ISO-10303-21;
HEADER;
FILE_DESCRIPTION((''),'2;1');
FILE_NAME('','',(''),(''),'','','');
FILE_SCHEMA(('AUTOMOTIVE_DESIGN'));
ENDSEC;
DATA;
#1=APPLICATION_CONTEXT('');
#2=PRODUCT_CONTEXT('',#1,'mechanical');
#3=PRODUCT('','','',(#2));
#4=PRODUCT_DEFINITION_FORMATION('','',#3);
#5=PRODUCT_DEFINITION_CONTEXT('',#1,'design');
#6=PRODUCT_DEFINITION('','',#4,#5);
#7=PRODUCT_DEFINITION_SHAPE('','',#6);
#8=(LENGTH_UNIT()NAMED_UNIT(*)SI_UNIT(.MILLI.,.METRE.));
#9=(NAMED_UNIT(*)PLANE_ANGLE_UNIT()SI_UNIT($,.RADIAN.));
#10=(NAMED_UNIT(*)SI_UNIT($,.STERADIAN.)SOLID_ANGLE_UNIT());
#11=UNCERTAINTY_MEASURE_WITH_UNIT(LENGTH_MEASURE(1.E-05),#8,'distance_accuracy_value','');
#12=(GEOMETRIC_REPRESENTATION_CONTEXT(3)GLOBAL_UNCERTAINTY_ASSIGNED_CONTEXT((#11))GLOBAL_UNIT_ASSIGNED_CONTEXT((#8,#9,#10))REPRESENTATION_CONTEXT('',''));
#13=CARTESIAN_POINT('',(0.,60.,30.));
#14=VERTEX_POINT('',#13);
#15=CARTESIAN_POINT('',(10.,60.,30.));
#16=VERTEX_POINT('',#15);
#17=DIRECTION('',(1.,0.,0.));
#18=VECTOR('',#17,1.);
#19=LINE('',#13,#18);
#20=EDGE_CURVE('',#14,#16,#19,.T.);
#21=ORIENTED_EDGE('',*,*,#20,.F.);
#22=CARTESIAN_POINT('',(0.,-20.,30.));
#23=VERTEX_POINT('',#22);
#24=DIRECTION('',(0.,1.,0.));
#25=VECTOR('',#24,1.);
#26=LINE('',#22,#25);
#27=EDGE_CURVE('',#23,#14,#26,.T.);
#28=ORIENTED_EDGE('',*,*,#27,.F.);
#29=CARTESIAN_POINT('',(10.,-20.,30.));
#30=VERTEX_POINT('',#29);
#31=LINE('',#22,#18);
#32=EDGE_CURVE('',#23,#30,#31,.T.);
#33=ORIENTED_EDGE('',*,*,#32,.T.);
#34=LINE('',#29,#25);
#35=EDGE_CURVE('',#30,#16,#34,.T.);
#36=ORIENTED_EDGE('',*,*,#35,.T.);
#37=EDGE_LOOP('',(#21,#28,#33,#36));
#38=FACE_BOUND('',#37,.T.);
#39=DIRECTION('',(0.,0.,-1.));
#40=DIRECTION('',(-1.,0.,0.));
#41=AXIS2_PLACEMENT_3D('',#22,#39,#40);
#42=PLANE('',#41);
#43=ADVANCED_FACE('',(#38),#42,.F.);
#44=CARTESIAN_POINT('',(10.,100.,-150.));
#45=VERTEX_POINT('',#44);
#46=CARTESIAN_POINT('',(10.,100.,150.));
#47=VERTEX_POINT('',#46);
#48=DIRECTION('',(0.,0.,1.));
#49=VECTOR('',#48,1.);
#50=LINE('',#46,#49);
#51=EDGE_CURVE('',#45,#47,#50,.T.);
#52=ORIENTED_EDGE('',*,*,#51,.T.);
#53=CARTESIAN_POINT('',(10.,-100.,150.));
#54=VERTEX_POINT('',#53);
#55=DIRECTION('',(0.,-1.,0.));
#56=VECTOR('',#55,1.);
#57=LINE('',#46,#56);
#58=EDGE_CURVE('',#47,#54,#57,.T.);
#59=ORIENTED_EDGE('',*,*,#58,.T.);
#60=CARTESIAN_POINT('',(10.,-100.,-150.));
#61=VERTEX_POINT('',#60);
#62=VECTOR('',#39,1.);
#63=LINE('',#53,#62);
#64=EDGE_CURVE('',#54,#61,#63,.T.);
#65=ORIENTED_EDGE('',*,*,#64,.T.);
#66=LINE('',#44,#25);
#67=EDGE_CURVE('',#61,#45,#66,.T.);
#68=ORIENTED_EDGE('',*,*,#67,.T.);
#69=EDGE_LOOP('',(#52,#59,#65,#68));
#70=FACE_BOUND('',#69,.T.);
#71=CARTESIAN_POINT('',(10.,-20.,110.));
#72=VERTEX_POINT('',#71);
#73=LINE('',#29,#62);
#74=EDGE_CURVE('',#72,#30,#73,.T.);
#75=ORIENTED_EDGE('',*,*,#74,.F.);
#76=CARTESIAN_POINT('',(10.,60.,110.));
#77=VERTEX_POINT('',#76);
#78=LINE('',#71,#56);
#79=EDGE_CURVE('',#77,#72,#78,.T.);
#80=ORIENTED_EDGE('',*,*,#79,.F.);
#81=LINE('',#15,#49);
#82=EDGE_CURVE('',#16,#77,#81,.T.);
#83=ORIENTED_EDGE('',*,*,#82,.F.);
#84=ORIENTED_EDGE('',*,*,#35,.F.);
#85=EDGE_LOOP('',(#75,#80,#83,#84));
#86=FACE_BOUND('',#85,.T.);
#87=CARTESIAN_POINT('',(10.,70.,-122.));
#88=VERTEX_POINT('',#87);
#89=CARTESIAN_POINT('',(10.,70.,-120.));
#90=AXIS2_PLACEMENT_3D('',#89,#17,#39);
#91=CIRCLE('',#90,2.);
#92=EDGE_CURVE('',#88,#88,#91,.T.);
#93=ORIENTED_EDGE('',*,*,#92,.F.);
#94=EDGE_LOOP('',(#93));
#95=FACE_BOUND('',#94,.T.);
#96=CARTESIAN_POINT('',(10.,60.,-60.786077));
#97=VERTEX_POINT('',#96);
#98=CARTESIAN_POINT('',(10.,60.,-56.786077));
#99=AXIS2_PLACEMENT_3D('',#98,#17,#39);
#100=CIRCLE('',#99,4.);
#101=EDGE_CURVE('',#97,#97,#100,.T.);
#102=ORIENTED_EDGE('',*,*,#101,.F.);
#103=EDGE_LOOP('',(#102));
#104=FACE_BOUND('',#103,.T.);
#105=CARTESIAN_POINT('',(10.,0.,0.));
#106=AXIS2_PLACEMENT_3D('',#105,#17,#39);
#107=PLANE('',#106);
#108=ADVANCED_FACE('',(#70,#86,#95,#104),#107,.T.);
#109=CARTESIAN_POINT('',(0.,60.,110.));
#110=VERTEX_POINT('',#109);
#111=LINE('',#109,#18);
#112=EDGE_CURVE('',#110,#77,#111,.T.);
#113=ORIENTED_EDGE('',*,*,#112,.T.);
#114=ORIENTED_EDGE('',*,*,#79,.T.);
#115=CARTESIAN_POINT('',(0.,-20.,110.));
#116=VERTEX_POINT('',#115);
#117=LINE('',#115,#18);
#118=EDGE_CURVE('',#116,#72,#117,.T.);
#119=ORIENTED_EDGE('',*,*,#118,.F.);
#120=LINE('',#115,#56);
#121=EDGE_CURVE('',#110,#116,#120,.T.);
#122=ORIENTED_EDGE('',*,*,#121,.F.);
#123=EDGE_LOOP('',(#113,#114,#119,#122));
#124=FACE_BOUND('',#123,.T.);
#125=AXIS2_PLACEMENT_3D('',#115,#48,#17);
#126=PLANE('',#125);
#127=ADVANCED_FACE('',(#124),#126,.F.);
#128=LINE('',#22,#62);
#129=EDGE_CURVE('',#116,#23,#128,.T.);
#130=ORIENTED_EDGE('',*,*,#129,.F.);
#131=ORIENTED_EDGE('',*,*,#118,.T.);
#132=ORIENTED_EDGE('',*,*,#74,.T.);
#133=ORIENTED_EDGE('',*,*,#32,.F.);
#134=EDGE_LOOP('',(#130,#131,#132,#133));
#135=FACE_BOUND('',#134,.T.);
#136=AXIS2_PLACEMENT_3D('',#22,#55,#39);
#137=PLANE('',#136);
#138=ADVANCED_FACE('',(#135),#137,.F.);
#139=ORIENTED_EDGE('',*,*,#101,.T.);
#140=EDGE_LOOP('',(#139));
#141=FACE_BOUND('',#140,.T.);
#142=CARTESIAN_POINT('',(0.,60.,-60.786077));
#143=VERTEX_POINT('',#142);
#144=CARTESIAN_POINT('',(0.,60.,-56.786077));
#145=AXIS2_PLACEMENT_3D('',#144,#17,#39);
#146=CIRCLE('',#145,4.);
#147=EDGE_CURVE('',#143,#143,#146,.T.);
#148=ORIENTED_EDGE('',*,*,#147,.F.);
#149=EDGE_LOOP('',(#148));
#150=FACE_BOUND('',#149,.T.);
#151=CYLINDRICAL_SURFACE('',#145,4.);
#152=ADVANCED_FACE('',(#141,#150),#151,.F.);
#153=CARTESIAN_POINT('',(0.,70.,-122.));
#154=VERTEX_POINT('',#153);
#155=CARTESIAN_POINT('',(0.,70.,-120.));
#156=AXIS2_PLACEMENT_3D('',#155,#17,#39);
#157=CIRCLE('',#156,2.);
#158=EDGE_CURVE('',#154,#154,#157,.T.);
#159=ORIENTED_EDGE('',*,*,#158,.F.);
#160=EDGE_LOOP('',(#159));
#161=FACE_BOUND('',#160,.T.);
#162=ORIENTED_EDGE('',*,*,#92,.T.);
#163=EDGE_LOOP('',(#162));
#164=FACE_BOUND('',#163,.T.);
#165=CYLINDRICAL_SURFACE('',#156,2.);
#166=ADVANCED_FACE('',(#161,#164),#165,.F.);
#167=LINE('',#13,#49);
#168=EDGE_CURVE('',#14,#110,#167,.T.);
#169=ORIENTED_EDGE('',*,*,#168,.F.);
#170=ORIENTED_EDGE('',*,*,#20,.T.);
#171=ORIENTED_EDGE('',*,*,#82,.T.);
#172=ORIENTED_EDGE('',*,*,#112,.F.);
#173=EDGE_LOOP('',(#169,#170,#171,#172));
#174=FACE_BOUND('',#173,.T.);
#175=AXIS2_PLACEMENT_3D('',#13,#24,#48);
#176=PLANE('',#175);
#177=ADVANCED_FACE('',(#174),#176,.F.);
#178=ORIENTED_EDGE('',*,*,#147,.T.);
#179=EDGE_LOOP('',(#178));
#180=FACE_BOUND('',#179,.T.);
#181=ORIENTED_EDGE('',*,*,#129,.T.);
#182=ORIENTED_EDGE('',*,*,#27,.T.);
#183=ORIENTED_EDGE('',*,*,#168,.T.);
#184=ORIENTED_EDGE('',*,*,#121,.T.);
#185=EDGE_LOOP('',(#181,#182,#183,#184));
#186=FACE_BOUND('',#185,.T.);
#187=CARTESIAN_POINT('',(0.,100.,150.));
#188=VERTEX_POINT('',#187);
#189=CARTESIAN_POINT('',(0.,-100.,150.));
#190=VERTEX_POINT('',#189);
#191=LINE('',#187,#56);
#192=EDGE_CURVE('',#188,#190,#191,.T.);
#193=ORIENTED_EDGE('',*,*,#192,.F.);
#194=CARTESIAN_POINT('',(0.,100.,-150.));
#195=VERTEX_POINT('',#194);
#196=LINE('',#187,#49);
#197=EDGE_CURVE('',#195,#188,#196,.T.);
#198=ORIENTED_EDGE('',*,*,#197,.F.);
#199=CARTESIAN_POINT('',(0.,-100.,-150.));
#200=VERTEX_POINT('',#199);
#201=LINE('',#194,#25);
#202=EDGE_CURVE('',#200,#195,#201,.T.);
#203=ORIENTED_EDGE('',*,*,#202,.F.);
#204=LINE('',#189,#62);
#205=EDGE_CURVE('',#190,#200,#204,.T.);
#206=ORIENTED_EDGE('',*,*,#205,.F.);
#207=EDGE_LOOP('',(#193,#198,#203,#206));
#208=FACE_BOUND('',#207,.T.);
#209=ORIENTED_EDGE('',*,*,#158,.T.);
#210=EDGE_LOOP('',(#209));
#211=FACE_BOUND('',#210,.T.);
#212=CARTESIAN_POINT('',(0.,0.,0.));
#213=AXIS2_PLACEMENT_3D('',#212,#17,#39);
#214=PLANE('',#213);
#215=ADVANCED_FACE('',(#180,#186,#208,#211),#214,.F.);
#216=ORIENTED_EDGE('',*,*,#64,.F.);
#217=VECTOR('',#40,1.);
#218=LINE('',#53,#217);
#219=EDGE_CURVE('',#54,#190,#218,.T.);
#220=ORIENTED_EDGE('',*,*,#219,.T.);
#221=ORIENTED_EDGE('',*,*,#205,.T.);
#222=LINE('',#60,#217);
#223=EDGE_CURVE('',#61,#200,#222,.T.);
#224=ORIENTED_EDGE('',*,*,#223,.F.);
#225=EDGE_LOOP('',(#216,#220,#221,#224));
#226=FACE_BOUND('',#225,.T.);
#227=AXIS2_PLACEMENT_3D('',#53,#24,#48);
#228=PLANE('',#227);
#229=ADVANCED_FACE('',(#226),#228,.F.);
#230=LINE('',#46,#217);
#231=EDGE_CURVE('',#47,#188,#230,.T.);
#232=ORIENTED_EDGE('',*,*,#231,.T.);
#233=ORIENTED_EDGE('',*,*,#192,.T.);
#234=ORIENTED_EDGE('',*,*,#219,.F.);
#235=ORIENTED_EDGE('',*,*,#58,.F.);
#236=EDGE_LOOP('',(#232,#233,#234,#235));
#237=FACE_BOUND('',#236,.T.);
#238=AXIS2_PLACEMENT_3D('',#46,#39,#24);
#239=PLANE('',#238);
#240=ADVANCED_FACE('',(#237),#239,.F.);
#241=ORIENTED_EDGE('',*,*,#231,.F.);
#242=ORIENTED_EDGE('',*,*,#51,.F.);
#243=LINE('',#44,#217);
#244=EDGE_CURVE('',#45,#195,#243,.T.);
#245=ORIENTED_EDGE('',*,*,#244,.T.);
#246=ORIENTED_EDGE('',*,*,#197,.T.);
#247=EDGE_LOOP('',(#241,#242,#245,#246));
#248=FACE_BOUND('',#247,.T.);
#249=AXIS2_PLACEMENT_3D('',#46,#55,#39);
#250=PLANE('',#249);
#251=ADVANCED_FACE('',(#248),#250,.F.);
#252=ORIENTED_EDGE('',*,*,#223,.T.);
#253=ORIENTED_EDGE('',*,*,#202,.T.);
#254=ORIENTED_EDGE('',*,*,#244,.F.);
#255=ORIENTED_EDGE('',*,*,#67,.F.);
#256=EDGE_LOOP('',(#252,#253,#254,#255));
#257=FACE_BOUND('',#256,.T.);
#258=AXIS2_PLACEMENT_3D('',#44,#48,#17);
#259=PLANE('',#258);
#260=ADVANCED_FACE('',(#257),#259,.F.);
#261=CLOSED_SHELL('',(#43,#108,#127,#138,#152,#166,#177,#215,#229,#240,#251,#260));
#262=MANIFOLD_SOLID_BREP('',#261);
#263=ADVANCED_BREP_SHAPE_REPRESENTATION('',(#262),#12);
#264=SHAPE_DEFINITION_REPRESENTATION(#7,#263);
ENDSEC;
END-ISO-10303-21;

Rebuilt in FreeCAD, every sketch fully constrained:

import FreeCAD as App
import Part
import Sketcher

V = App.Vector


def add_polygon(sketch, points):
    """Adds a closed chain of lines whose ends are joined by coincident constraints."""
    first, n = sketch.GeometryCount, len(points)
    for a, b in zip(points, points[1:] + points[:1]):
        sketch.addGeometry(Part.LineSegment(App.Vector(*a, 0), App.Vector(*b, 0)), False)
    for i in range(n):
        sketch.addConstraint(Sketcher.Constraint("Coincident", first + i, 2, first + (i + 1) % n, 1))

doc = App.newDocument("Part")
params = doc.addObject("Spreadsheet::Sheet", "Params")
for row, (alias, value) in enumerate([
    ("sketch1_width", "200 mm"),
    ("sketch1_height", "300 mm"),
    ("pad1_length", "10 mm"),
    ("sketch2_diameter", "4 mm"),
    ("sketch2_diameter2", "8 mm"),
    ("pocket1_length", "10 mm"),
    ("sketch3_width", "80 mm"),
    ("pocket2_length", "10 mm"),
], start=1):
    params.set(f"A{row}", alias)
    params.set(f"B{row}", "=" + value)
    params.setAlias(f"B{row}", alias)

body = doc.addObject("PartDesign::Body", "Body")

# Sketch on YZ plane
sketch1 = body.newObject("Sketcher::SketchObject", "Sketch")
sketch1.AttachmentSupport = (doc.getObject("YZ_Plane"), [""])
sketch1.MapMode = "FlatFace"
add_polygon(sketch1, [(100, 150), (-100, 150), (-100, -150), (100, -150)])  # lines 0-3
sketch1.addConstraint([
    Sketcher.Constraint("Horizontal", 0),
    Sketcher.Constraint("Vertical", 1),
    Sketcher.Constraint("Horizontal", 2),
    Sketcher.Constraint("Vertical", 3),
    Sketcher.Constraint("Symmetric", 0, 2, 2, 2, -1, 1),
    Sketcher.Constraint("DistanceX", 0, 2, 0, 1, 200.0),
    Sketcher.Constraint("DistanceY", 1, 2, 1, 1, 300.0),
])
sketch1.setExpression("Constraints[9]", "Params.sketch1_width")
sketch1.setExpression("Constraints[10]", "Params.sketch1_height")
pad1 = body.newObject("PartDesign::Pad", "Pad")
pad1.Profile = sketch1
pad1.setExpression("Length", "Params.pad1_length")

# Sketch on YZ plane
sketch2 = body.newObject("Sketcher::SketchObject", "Sketch001")
sketch2.AttachmentSupport = (doc.getObject("YZ_Plane"), [""])
sketch2.MapMode = "FlatFace"
sketch2.AttachmentOffset = App.Placement(V(0, 0, 10), App.Rotation())
sketch2.addGeometry([
    Part.Circle(V(70, -120, 0), V(0, 0, 1), 2),
    Part.Circle(V(60, -56.8, 0), V(0, 0, 1), 4),
], False)
sketch2.addConstraint([
    Sketcher.Constraint("Diameter", 0, 4.0),
    Sketcher.Constraint("Diameter", 1, 8.0),
    Sketcher.Constraint("DistanceX", -1, 1, 0, 3, 70.0),
    Sketcher.Constraint("DistanceY", 0, 3, -1, 1, 120.0),
    Sketcher.Constraint("DistanceX", -1, 1, 1, 3, 60.0),
    Sketcher.Constraint("DistanceY", 1, 3, -1, 1, 56.786077),
])
sketch2.setExpression("Constraints[0]", "Params.sketch2_diameter")
sketch2.setExpression("Constraints[1]", "Params.sketch2_diameter2")
pocket1 = body.newObject("PartDesign::Pocket", "Pocket")
pocket1.Profile = sketch2
pocket1.setExpression("Length", "Params.pocket1_length")

# Sketch on YZ plane
sketch3 = body.newObject("Sketcher::SketchObject", "Sketch002")
sketch3.AttachmentSupport = (doc.getObject("YZ_Plane"), [""])
sketch3.MapMode = "FlatFace"
sketch3.AttachmentOffset = App.Placement(V(0, 0, 10), App.Rotation())
add_polygon(sketch3, [(60, 110), (-20, 110), (-20, 30), (60, 30)])  # lines 0-3
sketch3.addConstraint([
    Sketcher.Constraint("Horizontal", 0),
    Sketcher.Constraint("Vertical", 1),
    Sketcher.Constraint("Horizontal", 2),
    Sketcher.Constraint("Vertical", 3),
    Sketcher.Constraint("Equal", 2, 1),
    Sketcher.Constraint("DistanceX", 0, 2, 0, 1, 80.0),
    Sketcher.Constraint("DistanceX", 0, 2, -1, 1, 20.0),
    Sketcher.Constraint("DistanceY", -1, 1, 0, 2, 110.0),
])
sketch3.setExpression("Constraints[9]", "Params.sketch3_width")
pocket2 = body.newObject("PartDesign::Pocket", "Pocket001")
pocket2.Profile = sketch3
pocket2.setExpression("Length", "Params.pocket2_length")

doc.recompute()
